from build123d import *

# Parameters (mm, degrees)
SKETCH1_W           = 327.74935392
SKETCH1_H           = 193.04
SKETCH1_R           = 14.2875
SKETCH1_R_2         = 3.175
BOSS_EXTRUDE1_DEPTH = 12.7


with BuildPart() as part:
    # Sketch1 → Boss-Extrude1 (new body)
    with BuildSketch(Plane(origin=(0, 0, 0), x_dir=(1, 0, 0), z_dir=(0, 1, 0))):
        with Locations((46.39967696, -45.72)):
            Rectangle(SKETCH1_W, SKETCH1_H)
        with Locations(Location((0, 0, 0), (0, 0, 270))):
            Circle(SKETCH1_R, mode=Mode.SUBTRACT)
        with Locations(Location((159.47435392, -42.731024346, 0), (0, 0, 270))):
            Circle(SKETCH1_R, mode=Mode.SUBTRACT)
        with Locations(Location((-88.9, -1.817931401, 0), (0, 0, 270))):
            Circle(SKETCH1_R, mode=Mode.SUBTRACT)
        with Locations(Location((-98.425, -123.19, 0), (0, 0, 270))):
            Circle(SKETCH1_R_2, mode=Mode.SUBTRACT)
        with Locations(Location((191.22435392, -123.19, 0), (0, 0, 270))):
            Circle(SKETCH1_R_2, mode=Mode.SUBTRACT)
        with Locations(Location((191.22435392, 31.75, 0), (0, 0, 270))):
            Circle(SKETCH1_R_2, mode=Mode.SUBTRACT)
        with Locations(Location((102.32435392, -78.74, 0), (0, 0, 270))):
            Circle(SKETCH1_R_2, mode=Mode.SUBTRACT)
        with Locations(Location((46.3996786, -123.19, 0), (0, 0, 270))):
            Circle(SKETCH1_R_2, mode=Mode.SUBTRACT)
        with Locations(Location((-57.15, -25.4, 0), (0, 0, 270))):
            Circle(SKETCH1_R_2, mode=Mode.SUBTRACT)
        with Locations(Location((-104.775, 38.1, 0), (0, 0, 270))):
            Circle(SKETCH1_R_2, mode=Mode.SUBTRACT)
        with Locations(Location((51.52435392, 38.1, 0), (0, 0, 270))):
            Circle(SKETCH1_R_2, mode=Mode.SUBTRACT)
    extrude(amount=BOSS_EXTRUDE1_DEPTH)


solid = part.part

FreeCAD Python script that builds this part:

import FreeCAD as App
import Part
import Sketcher
from FreeCAD import Vector
Q = App.Units.Quantity

doc = App.newDocument("Part")
body = doc.addObject("PartDesign::Body", "Body")

# Sketch on XZ plane
sketch1 = body.newObject("Sketcher::SketchObject", "Sketch")
sketch1.AttachmentSupport = (doc.getObject("XZ_Plane"), [""])
sketch1.MapMode = "FlatFace"
sketch1.addGeometry([
    Part.LineSegment(Vector(-117.5, -50.8, 0), Vector(-117.5, 142.2, 0)),  # 0
    Part.LineSegment(Vector(-117.5, 142.2, 0), Vector(210.3, 142.2, 0)),  # 1
    Part.LineSegment(Vector(210.3, 142.2, 0), Vector(210.3, -50.8, 0)),  # 2
    Part.LineSegment(Vector(210.3, -50.8, 0), Vector(-117.5, -50.8, 0)),  # 3
    Part.Circle(Vector(-98.4, 123.2, 0), Vector(0, 0, 1), 3.2),  # 4
    Part.Circle(Vector(46.4, 123.2, 0), Vector(0, 0, 1), 3.2),  # 5
    Part.Circle(Vector(191.2, 123.2, 0), Vector(0, 0, 1), 3.2),  # 6
    Part.Circle(Vector(102.3, 78.7, 0), Vector(0, 0, 1), 3.2),  # 7
    Part.Circle(Vector(159.5, 42.7, 0), Vector(0, 0, 1), 14.3),  # 8
    Part.Circle(Vector(-57.1, 25.4, 0), Vector(0, 0, 1), 3.2),  # 9
    Part.Circle(Vector(-88.9, 1.8, 0), Vector(0, 0, 1), 14.3),  # 10
    Part.Circle(Vector(-104.8, -38.1, 0), Vector(0, 0, 1), 3.2),  # 11
    Part.Circle(Vector(0, 0, 0), Vector(0, 0, 1), 14.3),  # 12
    Part.Circle(Vector(51.5, -38.1, 0), Vector(0, 0, 1), 3.2),  # 13
    Part.Circle(Vector(191.2, -31.8, 0), Vector(0, 0, 1), 3.2),  # 14
], False)
sketch1.addConstraint([
    Sketcher.Constraint("Coincident", 0, 2, 1, 1),
    Sketcher.Constraint("Coincident", 1, 2, 2, 1),
    Sketcher.Constraint("Coincident", 2, 2, 3, 1),
    Sketcher.Constraint("Coincident", 3, 2, 0, 1),
    Sketcher.Constraint("Vertical", 0),
    Sketcher.Constraint("Horizontal", 1),
    Sketcher.Constraint("Vertical", 2),
    Sketcher.Constraint("Horizontal", 3),
    Sketcher.Constraint("Coincident", 12, 3, -1, 1),
    Sketcher.Constraint("Equal", 4, 5),
    Sketcher.Constraint("Equal", 5, 6),
    Sketcher.Constraint("Equal", 6, 7),
    Sketcher.Constraint("Equal", 7, 9),
    Sketcher.Constraint("Equal", 8, 10),
    Sketcher.Constraint("Equal", 9, 11),
    Sketcher.Constraint("Equal", 10, 12),
    Sketcher.Constraint("Equal", 11, 13),
    Sketcher.Constraint("Equal", 13, 14),
    Sketcher.Constraint("Horizontal", 4, 3, 5, 3),
    Sketcher.Constraint("Horizontal", 5, 3, 6, 3),
    Sketcher.Constraint("Horizontal", 11, 3, 13, 3),
    Sketcher.Constraint("Vertical", 6, 3, 14, 3),
    Sketcher.Constraint("Diameter", 4, Q("0.25 in")),
    Sketcher.Constraint("Diameter", 8, Q("1.125 in")),
    Sketcher.Constraint("DistanceY", 0, 1, 0, 2, Q("7.6 in")),
    Sketcher.Constraint("DistanceY", -1, 1, 9, 3, Q("1 in")),
    Sketcher.Constraint("DistanceY", 2, 2, -1, 1, Q("2 in")),
    Sketcher.Constraint("DistanceX", 13, 3, 7, 3, Q("2 in")),
    Sketcher.Constraint("DistanceX", 8, 3, 1, 2, Q("2 in")),
    Sketcher.Constraint("DistanceY", -1, 1, 7, 3, Q("3.1 in")),
    Sketcher.Constraint("DistanceX", 10, 3, -1, 1, Q("3.5 in")),
    Sketcher.Constraint("DistanceY", 11, 3, -1, 1, Q("1.5 in")),
    Sketcher.Constraint("DistanceX", 7, 3, 6, 3, Q("3.5 in")),
    Sketcher.Constraint("DistanceY", 14, 3, 6, 3, Q("6.1 in")),
    Sketcher.Constraint("DistanceX", 0, 2, 11, 3, Q("0.5 in")),
    Sketcher.Constraint("DistanceY", -1, 1, 4, 3, Q("4.85 in")),
    Sketcher.Constraint("DistanceX", 9, 3, -1, 1, Q("2.25 in")),
    Sketcher.Constraint("DistanceX", 7, 3, 8, 3, Q("2.25 in")),
    Sketcher.Constraint("DistanceX", 11, 3, 4, 3, Q("0.25 in")),
    Sketcher.Constraint("DistanceX", 4, 3, -1, 1, Q("3.875 in")),
    Sketcher.Constraint("DistanceX", 1, 1, 1, 2, 327.749354),
    Sketcher.Constraint("DistanceX", -1, 1, 5, 3, 46.399679),
    Sketcher.Constraint("DistanceY", -1, 1, 10, 3, 1.817931),
    Sketcher.Constraint("DistanceY", -1, 1, 8, 3, 42.731024),
])
pad1 = body.newObject("PartDesign::Pad", "Pad")
pad1.Profile = sketch1
pad1.Length = Q("0.5 in")
pad1.Reversed = True

doc.recompute()
